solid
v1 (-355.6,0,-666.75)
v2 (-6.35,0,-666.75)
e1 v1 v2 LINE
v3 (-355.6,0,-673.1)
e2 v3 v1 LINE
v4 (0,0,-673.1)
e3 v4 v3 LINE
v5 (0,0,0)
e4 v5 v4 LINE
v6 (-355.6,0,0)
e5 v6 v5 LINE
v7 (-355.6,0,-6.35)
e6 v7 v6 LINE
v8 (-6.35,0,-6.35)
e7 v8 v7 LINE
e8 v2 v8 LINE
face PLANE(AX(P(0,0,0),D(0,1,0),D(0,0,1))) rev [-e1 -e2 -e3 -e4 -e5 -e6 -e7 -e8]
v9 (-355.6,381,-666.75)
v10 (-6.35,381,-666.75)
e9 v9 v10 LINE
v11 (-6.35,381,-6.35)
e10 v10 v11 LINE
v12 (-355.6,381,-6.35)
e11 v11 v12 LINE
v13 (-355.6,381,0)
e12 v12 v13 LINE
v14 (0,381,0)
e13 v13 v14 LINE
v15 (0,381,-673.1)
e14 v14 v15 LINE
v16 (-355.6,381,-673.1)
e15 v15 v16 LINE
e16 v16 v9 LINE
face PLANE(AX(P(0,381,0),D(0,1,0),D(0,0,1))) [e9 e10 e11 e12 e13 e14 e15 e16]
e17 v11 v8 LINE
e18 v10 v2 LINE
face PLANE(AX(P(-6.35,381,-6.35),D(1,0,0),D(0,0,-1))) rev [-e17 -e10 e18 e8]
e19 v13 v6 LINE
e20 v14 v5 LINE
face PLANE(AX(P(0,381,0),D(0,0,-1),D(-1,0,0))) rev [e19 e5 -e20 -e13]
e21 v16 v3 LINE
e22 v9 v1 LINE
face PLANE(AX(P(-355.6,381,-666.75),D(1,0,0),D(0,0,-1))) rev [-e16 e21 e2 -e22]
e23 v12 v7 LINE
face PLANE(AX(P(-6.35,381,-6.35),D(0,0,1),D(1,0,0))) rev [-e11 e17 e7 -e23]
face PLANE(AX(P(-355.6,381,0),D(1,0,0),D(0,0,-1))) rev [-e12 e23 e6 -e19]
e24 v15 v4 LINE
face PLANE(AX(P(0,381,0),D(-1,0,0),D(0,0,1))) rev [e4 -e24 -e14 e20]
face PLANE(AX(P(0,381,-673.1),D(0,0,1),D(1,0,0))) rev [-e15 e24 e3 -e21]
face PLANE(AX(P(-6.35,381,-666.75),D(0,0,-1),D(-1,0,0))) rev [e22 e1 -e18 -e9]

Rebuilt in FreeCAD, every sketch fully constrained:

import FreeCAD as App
import Part
import Sketcher
from FreeCAD import Vector
Q = App.Units.Quantity

doc = App.newDocument("Part")
body = doc.addObject("PartDesign::Body", "Body")

sketch1 = body.newObject("Sketcher::SketchObject", "Sketch")
sketch1.AttachmentSupport = (doc.getObject("XZ_Plane"), [""])
sketch1.MapMode = "FlatFace"
sketch1.addGeometry(Part.LineSegment(Vector(-355.6, -666.75, 0), Vector(-6.35, -666.75, 0)), False)
sketch1.addGeometry(Part.LineSegment(Vector(-6.35, -666.75, 0), Vector(-6.35, -6.35, 0)), False)
sketch1.addGeometry(Part.LineSegment(Vector(-6.35, -6.35, 0), Vector(-355.6, -6.35, 0)), False)
sketch1.addGeometry(Part.LineSegment(Vector(-355.6, -6.35, 0), Vector(-355.6, 0, 0)), False)
sketch1.addGeometry(Part.LineSegment(Vector(-355.6, 0, 0), Vector(0, 0, 0)), False)
sketch1.addGeometry(Part.LineSegment(Vector(0, 0, 0), Vector(0, -673.1, 0)), False)
sketch1.addGeometry(Part.LineSegment(Vector(0, -673.1, 0), Vector(-355.6, -673.1, 0)), False)
sketch1.addGeometry(Part.LineSegment(Vector(-355.6, -673.1, 0), Vector(-355.6, -666.75, 0)), False)
sketch1.addConstraint(Sketcher.Constraint("Coincident", 0, 2, 1, 1))
sketch1.addConstraint(Sketcher.Constraint("Coincident", 1, 2, 2, 1))
sketch1.addConstraint(Sketcher.Constraint("Coincident", 2, 2, 3, 1))
sketch1.addConstraint(Sketcher.Constraint("Coincident", 3, 2, 4, 1))
sketch1.addConstraint(Sketcher.Constraint("Coincident", 4, 2, 5, 1))
sketch1.addConstraint(Sketcher.Constraint("Coincident", 5, 2, 6, 1))
sketch1.addConstraint(Sketcher.Constraint("Coincident", 6, 2, 7, 1))
sketch1.addConstraint(Sketcher.Constraint("Coincident", 7, 2, 0, 1))
sketch1.addConstraint(Sketcher.Constraint("Horizontal", 0))
sketch1.addConstraint(Sketcher.Constraint("Vertical", 1))
sketch1.addConstraint(Sketcher.Constraint("Horizontal", 2))
sketch1.addConstraint(Sketcher.Constraint("Vertical", 3))
sketch1.addConstraint(Sketcher.Constraint("Horizontal", 4))
sketch1.addConstraint(Sketcher.Constraint("Vertical", 5))
sketch1.addConstraint(Sketcher.Constraint("Horizontal", 6))
sketch1.addConstraint(Sketcher.Constraint("Vertical", 7))
sketch1.addConstraint(Sketcher.Constraint("Coincident", 4, 2, -1, 1))
sketch1.addConstraint(Sketcher.Constraint("Vertical", 3, 2, 6, 2))
sketch1.addConstraint(Sketcher.Constraint("Equal", 3, 7))
sketch1.addConstraint(Sketcher.Constraint("DistanceX", 4, 1, 4, 2, Q("14 in")))
sketch1.addConstraint(Sketcher.Constraint("DistanceY", 1, 1, 1, 2, Q("26 in")))
sketch1.addConstraint(Sketcher.Constraint("DistanceY", 5, 2, 5, 1, Q("26.5 in")))
sketch1.addConstraint(Sketcher.Constraint("DistanceX", 0, 1, 0, 2, Q("13.75 in")))
pad1 = body.newObject("PartDesign::Pad", "Pad")
pad1.Profile = sketch1
pad1.Length = Q("15 in")
pad1.Reversed = True

doc.recompute()
